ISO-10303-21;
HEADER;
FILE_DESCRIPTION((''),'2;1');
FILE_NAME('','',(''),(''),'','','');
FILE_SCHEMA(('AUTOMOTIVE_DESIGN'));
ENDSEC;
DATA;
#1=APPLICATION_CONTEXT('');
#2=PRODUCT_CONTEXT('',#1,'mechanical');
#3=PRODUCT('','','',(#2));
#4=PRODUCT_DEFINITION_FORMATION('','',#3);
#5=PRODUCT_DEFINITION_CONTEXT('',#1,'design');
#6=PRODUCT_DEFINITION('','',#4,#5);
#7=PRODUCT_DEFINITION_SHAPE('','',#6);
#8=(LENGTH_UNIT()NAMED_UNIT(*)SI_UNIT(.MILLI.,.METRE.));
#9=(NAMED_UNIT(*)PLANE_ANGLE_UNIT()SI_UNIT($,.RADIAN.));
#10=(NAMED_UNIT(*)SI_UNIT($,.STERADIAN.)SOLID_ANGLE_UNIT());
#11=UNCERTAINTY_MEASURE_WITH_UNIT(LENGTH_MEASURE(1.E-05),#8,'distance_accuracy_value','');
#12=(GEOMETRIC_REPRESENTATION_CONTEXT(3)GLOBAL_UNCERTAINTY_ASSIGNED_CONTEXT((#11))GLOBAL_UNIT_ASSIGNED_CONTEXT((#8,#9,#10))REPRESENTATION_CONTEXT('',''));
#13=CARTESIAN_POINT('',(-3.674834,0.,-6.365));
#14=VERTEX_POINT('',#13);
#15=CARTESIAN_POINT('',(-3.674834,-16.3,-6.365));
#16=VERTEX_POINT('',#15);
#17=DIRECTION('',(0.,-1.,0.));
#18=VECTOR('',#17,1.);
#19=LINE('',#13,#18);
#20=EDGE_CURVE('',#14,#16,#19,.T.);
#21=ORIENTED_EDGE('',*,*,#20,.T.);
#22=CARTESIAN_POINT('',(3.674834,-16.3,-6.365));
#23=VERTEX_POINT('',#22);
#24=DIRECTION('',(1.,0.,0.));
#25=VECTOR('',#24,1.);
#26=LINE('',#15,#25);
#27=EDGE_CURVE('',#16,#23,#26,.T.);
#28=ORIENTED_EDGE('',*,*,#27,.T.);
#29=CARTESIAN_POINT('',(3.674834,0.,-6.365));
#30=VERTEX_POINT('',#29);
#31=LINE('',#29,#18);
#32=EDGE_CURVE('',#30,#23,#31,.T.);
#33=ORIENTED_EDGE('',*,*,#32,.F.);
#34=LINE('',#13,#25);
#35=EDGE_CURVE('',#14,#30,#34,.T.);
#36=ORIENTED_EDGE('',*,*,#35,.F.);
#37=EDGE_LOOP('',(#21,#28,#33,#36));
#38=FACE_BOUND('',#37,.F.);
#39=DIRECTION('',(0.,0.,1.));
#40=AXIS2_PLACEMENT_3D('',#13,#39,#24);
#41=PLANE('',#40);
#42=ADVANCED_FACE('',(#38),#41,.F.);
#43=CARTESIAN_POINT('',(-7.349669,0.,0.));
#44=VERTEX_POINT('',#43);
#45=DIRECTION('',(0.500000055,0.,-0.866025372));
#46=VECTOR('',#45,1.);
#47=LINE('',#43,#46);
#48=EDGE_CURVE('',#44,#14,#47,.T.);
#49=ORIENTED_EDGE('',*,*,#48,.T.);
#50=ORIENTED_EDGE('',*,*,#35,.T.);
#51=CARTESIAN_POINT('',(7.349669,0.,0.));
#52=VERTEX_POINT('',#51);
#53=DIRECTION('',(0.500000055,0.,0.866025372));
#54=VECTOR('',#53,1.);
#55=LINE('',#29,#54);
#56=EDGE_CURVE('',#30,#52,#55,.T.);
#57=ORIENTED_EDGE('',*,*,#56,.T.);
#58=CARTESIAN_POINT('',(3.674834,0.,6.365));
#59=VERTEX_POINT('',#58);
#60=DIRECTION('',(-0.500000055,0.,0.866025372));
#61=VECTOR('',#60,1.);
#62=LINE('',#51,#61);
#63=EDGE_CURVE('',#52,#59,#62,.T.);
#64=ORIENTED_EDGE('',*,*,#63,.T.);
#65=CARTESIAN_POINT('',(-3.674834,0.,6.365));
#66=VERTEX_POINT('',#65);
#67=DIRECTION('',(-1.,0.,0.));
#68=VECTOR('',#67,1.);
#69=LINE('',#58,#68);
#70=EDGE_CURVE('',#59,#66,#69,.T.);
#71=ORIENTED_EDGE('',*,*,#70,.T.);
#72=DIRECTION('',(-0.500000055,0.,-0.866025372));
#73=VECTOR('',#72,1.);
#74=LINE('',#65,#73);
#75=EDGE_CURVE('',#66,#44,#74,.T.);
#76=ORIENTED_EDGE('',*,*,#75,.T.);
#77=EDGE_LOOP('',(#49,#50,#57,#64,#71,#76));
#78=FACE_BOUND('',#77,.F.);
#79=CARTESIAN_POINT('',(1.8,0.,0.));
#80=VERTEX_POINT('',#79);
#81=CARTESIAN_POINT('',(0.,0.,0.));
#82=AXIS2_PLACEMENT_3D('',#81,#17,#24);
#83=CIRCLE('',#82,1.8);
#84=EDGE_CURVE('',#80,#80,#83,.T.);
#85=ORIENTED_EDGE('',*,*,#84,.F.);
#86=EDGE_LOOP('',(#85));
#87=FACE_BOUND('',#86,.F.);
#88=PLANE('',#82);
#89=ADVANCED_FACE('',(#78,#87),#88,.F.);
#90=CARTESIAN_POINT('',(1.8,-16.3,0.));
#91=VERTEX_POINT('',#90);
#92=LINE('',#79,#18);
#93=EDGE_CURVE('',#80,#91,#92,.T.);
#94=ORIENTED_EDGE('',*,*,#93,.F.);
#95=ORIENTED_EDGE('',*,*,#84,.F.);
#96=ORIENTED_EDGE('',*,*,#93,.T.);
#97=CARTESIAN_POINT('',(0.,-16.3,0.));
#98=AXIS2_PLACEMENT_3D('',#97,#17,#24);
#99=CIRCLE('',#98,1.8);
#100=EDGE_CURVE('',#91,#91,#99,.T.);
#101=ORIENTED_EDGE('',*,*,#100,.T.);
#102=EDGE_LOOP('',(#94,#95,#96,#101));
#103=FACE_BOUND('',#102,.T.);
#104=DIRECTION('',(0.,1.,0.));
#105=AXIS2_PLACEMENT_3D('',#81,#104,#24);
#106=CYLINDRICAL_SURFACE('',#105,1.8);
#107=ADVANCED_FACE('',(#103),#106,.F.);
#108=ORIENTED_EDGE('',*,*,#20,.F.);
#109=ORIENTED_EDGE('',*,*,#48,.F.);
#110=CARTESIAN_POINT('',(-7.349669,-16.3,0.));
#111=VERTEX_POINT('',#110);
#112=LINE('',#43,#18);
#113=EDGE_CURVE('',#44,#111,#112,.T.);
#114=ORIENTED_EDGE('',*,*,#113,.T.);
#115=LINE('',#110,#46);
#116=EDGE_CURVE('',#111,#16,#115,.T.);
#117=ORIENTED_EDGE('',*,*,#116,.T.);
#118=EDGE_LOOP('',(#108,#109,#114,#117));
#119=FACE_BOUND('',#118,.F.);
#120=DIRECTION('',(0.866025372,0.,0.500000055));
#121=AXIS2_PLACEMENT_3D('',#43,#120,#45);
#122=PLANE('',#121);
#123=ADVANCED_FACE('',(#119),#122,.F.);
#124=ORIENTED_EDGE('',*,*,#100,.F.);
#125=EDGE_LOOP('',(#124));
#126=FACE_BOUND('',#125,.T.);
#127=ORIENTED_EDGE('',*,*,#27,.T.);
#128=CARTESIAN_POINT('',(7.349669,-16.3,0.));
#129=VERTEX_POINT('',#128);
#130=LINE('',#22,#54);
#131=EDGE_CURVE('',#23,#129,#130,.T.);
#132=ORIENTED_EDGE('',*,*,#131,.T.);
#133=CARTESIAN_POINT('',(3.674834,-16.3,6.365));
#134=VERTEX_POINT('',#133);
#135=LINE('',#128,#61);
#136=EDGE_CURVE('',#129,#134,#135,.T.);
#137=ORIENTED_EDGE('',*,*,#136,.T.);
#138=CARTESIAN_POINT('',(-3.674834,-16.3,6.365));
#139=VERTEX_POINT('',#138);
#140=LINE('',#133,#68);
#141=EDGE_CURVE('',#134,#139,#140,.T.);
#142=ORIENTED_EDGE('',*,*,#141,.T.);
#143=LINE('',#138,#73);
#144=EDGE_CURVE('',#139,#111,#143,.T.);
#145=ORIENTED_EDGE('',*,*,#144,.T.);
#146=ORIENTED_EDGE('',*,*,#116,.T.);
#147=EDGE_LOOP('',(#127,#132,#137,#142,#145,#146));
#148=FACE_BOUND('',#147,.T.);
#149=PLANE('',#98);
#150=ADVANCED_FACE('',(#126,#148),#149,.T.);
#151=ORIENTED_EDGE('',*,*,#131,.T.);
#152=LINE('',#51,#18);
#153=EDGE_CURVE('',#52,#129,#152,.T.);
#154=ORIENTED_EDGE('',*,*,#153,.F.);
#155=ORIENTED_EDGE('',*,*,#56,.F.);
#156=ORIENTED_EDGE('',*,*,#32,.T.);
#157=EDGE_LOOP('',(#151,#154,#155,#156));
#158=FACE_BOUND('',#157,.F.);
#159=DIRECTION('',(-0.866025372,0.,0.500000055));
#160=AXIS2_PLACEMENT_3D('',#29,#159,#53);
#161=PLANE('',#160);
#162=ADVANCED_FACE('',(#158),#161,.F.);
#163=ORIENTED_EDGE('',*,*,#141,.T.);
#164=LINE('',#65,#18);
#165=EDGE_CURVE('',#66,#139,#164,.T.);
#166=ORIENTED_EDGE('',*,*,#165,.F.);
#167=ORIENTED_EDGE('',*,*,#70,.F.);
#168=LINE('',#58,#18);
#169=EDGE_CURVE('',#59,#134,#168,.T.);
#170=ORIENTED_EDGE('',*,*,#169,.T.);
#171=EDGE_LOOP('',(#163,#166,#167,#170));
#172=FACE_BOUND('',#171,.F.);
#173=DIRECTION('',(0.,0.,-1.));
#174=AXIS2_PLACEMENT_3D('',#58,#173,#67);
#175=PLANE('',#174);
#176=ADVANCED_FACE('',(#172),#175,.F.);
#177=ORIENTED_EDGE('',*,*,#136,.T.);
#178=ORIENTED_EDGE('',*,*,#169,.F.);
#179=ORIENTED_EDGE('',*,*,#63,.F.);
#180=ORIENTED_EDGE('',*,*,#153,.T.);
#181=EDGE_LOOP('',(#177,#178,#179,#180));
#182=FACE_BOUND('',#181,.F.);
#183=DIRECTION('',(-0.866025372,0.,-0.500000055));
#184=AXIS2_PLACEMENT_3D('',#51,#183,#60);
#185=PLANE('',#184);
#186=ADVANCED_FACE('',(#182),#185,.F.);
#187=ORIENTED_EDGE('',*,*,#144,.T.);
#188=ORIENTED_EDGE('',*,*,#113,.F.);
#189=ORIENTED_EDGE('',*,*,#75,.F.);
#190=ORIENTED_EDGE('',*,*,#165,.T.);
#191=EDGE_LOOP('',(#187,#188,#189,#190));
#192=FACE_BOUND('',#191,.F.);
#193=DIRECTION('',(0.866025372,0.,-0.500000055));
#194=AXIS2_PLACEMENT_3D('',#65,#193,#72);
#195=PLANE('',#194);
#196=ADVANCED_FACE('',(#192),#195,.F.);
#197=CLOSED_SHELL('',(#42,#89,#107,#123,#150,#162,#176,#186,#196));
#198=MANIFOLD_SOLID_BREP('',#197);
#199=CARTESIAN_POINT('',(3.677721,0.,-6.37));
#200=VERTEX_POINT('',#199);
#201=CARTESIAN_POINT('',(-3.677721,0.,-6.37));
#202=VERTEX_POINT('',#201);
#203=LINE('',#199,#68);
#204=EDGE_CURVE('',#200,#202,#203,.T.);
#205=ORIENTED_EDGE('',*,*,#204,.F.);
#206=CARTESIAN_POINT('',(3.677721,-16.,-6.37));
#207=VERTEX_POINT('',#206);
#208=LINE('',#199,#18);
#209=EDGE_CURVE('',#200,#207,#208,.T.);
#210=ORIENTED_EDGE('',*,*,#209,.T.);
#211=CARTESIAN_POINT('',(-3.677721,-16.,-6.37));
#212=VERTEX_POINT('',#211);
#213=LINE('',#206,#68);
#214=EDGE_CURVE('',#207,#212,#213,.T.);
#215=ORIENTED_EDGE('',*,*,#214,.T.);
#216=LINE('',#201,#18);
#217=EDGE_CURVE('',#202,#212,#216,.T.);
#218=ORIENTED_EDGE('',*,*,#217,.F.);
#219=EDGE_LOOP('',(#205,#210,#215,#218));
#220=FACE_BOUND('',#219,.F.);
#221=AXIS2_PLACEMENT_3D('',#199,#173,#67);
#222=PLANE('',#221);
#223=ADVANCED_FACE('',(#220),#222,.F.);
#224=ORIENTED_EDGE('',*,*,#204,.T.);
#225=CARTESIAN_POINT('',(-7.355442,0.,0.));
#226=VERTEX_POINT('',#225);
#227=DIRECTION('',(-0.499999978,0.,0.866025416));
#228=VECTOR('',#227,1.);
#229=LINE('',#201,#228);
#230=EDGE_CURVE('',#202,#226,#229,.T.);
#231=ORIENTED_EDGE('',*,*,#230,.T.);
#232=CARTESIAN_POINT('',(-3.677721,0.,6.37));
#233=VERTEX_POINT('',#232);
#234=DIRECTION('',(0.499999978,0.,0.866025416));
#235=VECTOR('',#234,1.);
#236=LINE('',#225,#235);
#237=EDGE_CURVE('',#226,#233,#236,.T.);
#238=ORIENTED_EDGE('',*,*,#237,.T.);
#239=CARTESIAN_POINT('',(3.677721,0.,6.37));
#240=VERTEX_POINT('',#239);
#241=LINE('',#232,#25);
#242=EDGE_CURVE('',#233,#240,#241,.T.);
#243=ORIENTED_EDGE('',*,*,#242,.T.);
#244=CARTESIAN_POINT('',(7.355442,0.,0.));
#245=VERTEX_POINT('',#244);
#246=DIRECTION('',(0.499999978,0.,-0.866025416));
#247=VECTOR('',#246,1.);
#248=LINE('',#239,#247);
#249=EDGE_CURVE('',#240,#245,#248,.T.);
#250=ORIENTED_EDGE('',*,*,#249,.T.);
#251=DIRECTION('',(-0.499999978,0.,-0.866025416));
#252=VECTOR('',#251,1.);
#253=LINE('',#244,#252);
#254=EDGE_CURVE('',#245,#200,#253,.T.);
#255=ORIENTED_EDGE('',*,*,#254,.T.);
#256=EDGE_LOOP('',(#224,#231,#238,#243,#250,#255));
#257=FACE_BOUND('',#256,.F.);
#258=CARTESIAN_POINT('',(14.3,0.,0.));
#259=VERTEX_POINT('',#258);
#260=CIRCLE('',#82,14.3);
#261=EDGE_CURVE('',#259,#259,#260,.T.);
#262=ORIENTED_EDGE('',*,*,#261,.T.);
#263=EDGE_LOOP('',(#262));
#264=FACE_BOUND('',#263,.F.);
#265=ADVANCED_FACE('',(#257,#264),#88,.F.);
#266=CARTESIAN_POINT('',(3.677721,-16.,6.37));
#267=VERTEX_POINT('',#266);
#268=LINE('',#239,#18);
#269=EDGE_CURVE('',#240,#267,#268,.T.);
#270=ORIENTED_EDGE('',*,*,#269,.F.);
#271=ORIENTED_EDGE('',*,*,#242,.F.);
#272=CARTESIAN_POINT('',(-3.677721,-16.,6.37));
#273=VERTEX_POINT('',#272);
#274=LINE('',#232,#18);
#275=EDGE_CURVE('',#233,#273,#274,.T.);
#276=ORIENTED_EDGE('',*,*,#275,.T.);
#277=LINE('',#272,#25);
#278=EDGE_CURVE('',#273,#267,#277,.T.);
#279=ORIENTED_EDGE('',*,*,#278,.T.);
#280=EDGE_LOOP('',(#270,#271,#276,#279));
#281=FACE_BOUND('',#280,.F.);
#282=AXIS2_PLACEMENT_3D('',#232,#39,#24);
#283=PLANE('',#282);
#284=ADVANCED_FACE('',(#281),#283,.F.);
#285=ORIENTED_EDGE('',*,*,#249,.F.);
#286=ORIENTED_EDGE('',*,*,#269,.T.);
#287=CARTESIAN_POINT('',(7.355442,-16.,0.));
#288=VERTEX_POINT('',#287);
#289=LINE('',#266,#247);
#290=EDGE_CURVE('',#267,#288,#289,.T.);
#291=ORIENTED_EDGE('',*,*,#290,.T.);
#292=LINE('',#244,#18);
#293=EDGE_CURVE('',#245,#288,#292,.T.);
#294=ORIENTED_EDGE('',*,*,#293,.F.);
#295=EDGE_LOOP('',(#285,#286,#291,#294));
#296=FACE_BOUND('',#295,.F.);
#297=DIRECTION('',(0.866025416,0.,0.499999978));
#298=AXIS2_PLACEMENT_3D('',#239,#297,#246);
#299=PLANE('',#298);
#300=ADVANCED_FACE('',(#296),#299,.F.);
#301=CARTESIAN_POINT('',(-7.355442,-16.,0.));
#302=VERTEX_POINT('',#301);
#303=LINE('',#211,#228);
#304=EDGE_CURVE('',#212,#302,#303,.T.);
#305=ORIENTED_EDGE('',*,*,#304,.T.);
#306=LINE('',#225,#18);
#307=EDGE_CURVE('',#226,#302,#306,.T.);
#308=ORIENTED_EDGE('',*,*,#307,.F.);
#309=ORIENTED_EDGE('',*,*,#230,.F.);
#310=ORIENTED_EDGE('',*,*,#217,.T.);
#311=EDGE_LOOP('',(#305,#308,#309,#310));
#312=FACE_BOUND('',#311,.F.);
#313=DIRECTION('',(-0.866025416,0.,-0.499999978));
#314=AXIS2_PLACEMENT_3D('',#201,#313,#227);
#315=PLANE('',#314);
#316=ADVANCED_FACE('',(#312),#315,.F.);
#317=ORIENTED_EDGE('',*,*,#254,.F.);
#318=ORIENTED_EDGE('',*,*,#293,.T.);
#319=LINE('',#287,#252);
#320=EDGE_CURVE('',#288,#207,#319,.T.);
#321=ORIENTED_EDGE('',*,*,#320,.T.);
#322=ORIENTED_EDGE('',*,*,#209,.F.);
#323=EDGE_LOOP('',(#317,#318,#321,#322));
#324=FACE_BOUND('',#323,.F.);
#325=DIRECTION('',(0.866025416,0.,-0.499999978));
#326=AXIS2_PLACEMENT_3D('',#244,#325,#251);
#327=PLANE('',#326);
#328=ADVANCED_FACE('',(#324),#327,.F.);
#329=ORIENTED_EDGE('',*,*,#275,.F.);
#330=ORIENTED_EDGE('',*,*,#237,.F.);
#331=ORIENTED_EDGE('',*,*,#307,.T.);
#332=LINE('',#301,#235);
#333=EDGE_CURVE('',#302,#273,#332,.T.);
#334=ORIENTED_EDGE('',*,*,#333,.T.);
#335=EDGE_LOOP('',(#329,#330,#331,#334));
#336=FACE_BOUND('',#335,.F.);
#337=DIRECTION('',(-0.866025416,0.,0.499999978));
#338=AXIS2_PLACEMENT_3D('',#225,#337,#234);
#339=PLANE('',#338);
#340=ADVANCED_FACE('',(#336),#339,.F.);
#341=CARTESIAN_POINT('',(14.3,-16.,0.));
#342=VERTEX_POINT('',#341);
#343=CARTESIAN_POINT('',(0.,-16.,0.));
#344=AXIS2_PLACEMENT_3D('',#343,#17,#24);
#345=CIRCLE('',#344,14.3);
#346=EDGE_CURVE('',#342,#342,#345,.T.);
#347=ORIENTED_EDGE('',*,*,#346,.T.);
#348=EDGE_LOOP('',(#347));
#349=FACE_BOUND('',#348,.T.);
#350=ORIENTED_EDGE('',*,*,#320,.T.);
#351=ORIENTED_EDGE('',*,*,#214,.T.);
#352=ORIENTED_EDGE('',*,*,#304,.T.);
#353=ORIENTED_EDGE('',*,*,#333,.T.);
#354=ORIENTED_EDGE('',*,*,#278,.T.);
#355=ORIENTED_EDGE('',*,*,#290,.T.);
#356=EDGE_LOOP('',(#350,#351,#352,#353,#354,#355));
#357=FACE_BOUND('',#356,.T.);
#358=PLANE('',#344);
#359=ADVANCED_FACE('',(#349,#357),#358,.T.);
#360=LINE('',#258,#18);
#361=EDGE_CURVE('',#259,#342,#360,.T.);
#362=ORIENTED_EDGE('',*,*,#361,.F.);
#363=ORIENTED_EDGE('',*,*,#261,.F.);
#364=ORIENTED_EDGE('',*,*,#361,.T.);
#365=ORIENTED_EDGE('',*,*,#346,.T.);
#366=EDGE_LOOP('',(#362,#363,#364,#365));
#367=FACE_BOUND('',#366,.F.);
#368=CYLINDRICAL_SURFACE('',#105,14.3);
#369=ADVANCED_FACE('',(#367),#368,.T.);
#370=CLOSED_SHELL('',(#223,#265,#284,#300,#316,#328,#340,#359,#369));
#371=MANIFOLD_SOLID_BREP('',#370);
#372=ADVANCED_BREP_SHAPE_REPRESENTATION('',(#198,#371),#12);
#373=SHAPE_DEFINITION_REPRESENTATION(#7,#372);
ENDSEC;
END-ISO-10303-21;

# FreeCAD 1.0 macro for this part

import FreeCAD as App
import Part
import Sketcher

V = App.Vector
Q = App.Units.Quantity


def add_polygon(sketch, points):
    """Adds a closed chain of lines whose ends are joined by coincident constraints."""
    first, n = sketch.GeometryCount, len(points)
    for a, b in zip(points, points[1:] + points[:1]):
        sketch.addGeometry(Part.LineSegment(App.Vector(*a, 0), App.Vector(*b, 0)), False)
    for i in range(n):
        sketch.addConstraint(Sketcher.Constraint("Coincident", first + i, 2, first + (i + 1) % n, 1))

doc = App.newDocument("Part")
params = doc.addObject("Spreadsheet::Sheet", "Params")
for row, (alias, value) in enumerate([
    ("sketch1_diameter", "3.6 mm"),
    ("pad1_length", "16.3 mm"),
    ("sketch2_diameter", "28.6 mm"),
    ("pad2_length", "16 mm"),
], start=1):
    params.set(f"A{row}", alias)
    params.set(f"B{row}", "=" + value)
    params.setAlias(f"B{row}", alias)

body = doc.addObject("PartDesign::Body", "Body")

# Sketch on XZ plane
sketch1 = doc.addObject("Sketcher::SketchObject", "Sketch")
body.addObject(sketch1)
sketch1.AttachmentSupport = (doc.XZ_Plane, [""])
sketch1.MapMode = "FlatFace"
add_polygon(sketch1, [(3.7, 6.4), (-3.7, 6.4), (-7.3, 0), (-3.7, -6.4), (3.7, -6.4), (7.3, 0)])  # lines 0-5
sketch1.addGeometry(Part.Circle(V(0, 0, 0), V(0, 0, 1), 1.8), False)  # 6
sketch1.addConstraint(Sketcher.Constraint("Horizontal", 0))
sketch1.addConstraint(Sketcher.Constraint("Horizontal", 3))
sketch1.addConstraint(Sketcher.Constraint("Coincident", 6, 3, -1, 1))
sketch1.addConstraint(Sketcher.Constraint("Symmetric", 0, 2, 3, 2, -1, 1))
sketch1.addConstraint(Sketcher.Constraint("Symmetric", 1, 2, 4, 2, -1, 1))
sketch1.addConstraint(Sketcher.Constraint("PointOnObject", 1, 2, -1))
sketch1.addConstraint(Sketcher.Constraint("Parallel", 2, 5))
sketch1.addConstraint(Sketcher.Constraint("Vertical", 0, 2, 2, 2))
sketch1.addConstraint(Sketcher.Constraint("Diameter", 6, Q("3.6 mm")))
sketch1.addConstraint(Sketcher.Constraint("Angle", 1, Q("-120.000004 deg")))
sketch1.addConstraint(Sketcher.Constraint("DistanceY", 2, 2, 0, 2, Q("12.73 mm")))
sketch1.addConstraint(Sketcher.Constraint("DistanceX", 0, 2, 0, 1, Q("7.349668 mm")))
sketch1.setExpression("Constraints[14]", "Params.sketch1_diameter")
pad1 = doc.addObject("PartDesign::Pad", "Pad")
body.addObject(pad1)
pad1.Profile = sketch1
pad1.setExpression("Length", "Params.pad1_length")
body2 = doc.addObject("PartDesign::Body", "Body001")

# Sketch on XZ plane
sketch2 = doc.addObject("Sketcher::SketchObject", "Sketch001")
body2.addObject(sketch2)
sketch2.AttachmentSupport = (doc.getObject("XZ_Plane001"), [""])
sketch2.MapMode = "FlatFace"
sketch2.addGeometry(Part.Circle(V(0, 0, 0), V(0, 0, 1), 14), False)  # 0
add_polygon(sketch2, [(-4, -6), (-7, 0), (-4, 6), (4, 6), (7, 0), (4, -6)])  # lines 1-6
sketch2.addConstraint(Sketcher.Constraint("Horizontal", 3))
sketch2.addConstraint(Sketcher.Constraint("Horizontal", 6))
sketch2.addConstraint(Sketcher.Constraint("Coincident", 0, 3, -1, 1))
sketch2.addConstraint(Sketcher.Constraint("Symmetric", 1, 2, 4, 2, -1, 1))
sketch2.addConstraint(Sketcher.Constraint("Symmetric", 2, 2, 5, 2, -1, 1))
sketch2.addConstraint(Sketcher.Constraint("PointOnObject", 1, 2, -1))
sketch2.addConstraint(Sketcher.Constraint("Parallel", 1, 4))
sketch2.addConstraint(Sketcher.Constraint("Vertical", 3, 2, 5, 2))
sketch2.addConstraint(Sketcher.Constraint("Diameter", 0, Q("28.6 mm")))
sketch2.addConstraint(Sketcher.Constraint("Angle", 1, Q("119.999999 deg")))
sketch2.addConstraint(Sketcher.Constraint("DistanceY", -1, 1, 2, 2, Q("6.37 mm")))
sketch2.addConstraint(Sketcher.Constraint("DistanceX", 3, 1, 3, 2, Q("7.355442 mm")))
sketch2.setExpression("Constraints[14]", "Params.sketch2_diameter")
pad2 = doc.addObject("PartDesign::Pad", "Pad001")
body2.addObject(pad2)
pad2.Profile = sketch2
pad2.setExpression("Length", "Params.pad2_length")

doc.recompute()
